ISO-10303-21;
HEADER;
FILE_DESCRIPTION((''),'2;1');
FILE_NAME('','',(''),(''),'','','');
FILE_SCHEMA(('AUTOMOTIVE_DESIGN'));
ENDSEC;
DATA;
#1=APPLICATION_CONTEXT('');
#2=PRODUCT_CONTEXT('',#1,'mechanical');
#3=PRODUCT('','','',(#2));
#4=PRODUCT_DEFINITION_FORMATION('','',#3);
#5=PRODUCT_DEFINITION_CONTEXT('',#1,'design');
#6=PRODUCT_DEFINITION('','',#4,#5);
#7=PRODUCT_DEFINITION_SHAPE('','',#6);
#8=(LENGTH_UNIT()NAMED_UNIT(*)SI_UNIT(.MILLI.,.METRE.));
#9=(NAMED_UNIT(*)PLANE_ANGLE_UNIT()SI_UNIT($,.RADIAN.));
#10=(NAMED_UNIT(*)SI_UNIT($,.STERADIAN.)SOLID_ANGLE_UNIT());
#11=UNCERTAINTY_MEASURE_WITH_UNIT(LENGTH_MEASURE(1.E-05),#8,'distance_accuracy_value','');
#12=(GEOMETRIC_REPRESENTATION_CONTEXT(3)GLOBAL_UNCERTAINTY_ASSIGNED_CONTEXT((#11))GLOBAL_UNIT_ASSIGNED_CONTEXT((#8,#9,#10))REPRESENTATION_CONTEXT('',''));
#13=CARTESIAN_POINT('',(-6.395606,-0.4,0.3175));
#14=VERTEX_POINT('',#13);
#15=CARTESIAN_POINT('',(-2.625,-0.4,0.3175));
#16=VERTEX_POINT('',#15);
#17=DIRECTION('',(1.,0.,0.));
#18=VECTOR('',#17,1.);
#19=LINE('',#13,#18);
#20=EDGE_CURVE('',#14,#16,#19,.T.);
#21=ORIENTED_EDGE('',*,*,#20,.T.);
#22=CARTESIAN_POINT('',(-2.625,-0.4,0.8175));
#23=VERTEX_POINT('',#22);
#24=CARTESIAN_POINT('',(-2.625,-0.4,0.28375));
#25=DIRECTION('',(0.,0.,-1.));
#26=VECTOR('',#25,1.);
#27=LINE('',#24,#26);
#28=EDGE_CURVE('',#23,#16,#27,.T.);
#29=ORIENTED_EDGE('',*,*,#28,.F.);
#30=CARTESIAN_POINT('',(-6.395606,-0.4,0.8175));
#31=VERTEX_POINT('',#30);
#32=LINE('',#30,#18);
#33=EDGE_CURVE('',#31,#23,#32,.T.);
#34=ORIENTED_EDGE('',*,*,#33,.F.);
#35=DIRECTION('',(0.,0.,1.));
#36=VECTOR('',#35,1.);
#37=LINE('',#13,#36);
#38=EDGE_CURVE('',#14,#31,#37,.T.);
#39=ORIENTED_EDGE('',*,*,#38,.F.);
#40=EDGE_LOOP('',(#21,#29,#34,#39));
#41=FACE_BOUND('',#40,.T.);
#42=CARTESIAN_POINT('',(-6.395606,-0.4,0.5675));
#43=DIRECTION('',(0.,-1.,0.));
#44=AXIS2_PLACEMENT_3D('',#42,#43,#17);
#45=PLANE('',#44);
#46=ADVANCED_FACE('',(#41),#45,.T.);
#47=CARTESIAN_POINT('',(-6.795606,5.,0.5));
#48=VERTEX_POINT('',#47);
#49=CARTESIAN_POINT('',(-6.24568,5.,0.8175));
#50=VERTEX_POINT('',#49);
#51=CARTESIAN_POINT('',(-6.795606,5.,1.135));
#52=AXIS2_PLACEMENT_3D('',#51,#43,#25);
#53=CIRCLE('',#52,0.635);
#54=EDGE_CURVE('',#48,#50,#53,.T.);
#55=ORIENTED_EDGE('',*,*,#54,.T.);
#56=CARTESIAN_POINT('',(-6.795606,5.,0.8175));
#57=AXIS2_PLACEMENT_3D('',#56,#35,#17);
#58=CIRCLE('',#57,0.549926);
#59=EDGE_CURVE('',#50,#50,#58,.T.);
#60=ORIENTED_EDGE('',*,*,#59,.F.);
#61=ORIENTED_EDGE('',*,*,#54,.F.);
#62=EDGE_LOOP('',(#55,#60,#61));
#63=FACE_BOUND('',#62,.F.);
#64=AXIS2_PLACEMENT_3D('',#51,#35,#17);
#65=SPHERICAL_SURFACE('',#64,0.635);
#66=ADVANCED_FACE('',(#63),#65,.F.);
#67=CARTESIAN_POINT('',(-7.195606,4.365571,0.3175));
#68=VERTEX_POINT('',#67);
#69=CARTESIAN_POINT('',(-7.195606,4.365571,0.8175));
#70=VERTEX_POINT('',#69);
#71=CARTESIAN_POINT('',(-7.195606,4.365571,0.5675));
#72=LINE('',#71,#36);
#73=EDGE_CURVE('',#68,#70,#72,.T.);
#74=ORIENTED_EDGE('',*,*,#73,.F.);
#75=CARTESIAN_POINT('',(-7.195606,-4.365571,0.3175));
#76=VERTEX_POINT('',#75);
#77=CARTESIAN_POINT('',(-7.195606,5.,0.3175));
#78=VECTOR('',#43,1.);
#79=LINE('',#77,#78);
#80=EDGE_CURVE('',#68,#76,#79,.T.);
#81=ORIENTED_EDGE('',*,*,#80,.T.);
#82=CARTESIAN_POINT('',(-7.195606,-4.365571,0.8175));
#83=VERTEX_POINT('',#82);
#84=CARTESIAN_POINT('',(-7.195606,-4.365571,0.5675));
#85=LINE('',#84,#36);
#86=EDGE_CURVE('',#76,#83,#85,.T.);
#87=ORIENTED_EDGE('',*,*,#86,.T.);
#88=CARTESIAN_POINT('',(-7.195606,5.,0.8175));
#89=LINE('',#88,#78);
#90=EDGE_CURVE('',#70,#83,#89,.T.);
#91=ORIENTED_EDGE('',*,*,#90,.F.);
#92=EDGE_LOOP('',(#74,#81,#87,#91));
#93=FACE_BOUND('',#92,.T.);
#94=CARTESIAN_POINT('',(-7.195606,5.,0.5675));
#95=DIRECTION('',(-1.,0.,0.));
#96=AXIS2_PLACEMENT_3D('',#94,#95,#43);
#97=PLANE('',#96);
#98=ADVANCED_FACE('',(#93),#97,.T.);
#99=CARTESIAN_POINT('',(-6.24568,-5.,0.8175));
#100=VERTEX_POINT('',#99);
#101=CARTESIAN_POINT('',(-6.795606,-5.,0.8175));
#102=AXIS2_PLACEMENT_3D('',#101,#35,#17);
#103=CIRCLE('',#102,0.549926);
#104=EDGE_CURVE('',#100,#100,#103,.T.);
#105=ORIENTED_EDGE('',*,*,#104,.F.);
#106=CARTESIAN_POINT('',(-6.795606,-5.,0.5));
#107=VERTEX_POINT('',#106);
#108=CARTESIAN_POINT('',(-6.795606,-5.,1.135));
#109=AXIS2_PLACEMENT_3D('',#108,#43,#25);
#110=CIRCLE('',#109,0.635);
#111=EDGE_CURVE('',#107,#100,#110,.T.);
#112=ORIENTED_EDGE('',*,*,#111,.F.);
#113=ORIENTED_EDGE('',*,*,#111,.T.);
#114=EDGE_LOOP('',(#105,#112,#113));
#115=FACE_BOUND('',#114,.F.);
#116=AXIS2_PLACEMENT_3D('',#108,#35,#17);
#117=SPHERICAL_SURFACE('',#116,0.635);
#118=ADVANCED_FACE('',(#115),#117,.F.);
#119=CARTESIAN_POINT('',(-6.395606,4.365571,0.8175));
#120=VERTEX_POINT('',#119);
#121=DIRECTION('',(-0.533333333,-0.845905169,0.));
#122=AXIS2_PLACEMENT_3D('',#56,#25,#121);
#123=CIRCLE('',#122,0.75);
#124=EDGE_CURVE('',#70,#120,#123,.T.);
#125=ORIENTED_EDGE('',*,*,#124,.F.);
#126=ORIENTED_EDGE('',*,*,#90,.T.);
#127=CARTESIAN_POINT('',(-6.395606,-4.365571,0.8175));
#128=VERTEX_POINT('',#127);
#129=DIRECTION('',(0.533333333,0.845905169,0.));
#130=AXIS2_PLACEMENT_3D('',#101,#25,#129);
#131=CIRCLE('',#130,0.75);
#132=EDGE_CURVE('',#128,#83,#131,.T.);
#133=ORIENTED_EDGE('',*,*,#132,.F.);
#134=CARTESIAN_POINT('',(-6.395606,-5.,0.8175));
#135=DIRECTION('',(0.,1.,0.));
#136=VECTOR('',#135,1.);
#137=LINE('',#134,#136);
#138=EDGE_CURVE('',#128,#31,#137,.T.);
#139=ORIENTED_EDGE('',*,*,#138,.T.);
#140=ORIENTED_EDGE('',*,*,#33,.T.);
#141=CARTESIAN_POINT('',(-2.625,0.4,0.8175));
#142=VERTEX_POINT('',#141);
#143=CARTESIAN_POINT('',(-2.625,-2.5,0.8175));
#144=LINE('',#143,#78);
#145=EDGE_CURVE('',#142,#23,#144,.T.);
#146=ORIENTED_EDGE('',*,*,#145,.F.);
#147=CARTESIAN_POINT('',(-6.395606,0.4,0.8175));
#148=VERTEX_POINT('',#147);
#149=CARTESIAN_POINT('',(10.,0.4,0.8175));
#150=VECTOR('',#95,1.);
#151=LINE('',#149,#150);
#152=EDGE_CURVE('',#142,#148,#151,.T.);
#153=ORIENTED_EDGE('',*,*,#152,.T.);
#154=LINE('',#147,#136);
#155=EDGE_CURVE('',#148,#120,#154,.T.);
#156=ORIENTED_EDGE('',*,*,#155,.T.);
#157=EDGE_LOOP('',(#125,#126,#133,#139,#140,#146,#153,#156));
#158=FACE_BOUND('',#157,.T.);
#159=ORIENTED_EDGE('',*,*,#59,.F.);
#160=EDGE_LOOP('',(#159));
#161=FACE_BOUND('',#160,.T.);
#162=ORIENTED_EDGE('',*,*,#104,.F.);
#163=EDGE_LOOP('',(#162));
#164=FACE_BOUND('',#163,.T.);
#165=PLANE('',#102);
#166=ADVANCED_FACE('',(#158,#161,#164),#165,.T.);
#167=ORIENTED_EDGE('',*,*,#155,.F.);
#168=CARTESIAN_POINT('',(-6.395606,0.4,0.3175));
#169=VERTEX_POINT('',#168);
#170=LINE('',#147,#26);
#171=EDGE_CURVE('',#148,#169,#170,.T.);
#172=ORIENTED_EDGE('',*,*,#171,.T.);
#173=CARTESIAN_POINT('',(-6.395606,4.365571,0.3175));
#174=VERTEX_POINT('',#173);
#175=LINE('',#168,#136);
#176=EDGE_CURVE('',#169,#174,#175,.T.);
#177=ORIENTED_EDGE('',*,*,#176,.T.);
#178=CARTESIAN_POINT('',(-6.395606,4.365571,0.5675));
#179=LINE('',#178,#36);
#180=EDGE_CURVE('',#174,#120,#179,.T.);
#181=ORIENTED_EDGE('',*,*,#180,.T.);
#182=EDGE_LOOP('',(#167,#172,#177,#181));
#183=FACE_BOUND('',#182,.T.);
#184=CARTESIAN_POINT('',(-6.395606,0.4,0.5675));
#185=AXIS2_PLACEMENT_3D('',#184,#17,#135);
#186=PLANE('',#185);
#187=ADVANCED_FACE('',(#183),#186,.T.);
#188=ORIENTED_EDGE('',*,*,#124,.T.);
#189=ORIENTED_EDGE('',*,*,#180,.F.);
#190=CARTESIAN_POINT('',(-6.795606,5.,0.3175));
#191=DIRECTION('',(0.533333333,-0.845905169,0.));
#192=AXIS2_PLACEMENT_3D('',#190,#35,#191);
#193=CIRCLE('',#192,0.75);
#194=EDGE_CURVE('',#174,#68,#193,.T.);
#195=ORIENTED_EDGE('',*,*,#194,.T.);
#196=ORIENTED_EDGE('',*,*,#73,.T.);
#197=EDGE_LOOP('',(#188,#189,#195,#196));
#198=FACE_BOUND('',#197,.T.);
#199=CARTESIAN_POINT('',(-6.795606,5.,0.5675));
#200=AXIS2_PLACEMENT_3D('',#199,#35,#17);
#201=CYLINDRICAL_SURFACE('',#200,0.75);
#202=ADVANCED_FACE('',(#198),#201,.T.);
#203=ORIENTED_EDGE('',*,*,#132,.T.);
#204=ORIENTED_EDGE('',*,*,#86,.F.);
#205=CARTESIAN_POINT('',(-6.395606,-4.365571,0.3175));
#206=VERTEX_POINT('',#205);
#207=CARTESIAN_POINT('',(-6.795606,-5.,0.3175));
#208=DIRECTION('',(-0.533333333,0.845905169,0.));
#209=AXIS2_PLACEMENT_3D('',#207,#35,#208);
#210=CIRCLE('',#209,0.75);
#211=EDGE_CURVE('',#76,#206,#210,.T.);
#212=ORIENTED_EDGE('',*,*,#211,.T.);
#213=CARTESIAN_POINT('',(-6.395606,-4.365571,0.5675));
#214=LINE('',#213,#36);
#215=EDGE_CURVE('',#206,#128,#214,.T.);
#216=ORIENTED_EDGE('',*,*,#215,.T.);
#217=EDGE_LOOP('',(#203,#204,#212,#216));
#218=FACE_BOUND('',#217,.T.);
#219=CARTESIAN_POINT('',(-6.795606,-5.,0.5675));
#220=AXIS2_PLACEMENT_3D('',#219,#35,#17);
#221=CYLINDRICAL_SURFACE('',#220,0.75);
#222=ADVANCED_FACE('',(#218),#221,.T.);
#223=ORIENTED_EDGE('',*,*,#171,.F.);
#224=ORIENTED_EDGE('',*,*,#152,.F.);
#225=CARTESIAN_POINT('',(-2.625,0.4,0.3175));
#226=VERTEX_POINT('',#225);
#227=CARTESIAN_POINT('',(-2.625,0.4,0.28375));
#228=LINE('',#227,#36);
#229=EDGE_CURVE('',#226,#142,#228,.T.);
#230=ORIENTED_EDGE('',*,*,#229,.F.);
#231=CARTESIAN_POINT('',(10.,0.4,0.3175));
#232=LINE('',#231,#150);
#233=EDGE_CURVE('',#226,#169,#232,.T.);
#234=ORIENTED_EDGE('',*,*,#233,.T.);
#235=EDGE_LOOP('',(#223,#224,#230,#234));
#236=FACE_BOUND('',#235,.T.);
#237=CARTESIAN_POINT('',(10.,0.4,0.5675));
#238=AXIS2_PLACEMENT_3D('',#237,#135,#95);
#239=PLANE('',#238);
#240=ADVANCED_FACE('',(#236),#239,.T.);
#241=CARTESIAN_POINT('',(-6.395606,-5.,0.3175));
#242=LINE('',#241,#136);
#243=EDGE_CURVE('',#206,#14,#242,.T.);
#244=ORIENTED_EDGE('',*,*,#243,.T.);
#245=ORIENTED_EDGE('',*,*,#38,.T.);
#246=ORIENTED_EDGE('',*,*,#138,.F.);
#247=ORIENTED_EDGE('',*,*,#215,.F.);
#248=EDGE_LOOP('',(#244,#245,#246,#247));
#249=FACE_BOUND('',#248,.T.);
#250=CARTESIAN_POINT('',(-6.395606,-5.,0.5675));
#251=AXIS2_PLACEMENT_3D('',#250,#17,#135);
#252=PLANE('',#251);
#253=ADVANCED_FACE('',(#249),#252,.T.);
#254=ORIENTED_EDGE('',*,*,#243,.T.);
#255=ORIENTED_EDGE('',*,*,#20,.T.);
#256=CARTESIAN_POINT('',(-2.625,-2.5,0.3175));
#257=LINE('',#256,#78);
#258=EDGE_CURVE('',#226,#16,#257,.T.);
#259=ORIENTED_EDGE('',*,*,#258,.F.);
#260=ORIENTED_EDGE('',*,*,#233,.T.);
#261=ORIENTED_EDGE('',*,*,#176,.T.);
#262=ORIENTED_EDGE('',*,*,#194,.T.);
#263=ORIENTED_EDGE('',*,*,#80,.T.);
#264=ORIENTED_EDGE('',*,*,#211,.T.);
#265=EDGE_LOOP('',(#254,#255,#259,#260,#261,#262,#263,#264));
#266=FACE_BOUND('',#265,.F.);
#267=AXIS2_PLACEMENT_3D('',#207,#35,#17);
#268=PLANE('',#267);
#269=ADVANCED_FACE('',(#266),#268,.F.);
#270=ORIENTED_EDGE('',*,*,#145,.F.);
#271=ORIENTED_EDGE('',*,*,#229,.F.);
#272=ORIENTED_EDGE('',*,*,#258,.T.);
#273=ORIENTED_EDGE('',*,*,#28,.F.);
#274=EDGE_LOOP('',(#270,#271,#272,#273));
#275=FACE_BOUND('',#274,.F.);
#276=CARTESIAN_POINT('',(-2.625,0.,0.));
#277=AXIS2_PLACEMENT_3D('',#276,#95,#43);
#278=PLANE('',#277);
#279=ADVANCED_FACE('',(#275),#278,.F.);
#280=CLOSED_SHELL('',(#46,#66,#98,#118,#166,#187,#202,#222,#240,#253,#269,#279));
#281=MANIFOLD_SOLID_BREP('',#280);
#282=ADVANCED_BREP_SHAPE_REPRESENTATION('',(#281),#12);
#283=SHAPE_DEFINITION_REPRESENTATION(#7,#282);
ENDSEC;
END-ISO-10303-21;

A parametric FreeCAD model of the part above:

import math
import FreeCAD as App
import Part
import Sketcher
from FreeCAD import Vector


def add_polygon(sketch, points):
    """Adds a closed chain of lines whose ends are joined by coincident constraints."""
    first, n = sketch.GeometryCount, len(points)
    for a, b in zip(points, points[1:] + points[:1]):
        sketch.addGeometry(Part.LineSegment(App.Vector(*a, 0), App.Vector(*b, 0)), False)
    for i in range(n):
        sketch.addConstraint(Sketcher.Constraint("Coincident", first + i, 2, first + (i + 1) % n, 1))

doc = App.newDocument("Part")
body = doc.addObject("PartDesign::Body", "Body")

# Sketch on XY plane
sketch1 = body.newObject("Sketcher::SketchObject", "Sketch")
sketch1.AttachmentSupport = (doc.getObject("XY_Plane"), [""])
sketch1.MapMode = "FlatFace"
sketch1.AttachmentOffset = App.Placement(Vector(0, 0, 0.5675), App.Rotation())
add_polygon(sketch1, [(-7.2, 5), (-7.2, -5), (-6.4, -5), (-6.4, -0.4), (10, -0.4), (10, 0.4), (-6.4, 0.4), (-6.4, 5)])  # lines 0-7
sketch1.addConstraint(Sketcher.Constraint("Vertical", 0))
sketch1.addConstraint(Sketcher.Constraint("Horizontal", 1))
sketch1.addConstraint(Sketcher.Constraint("Vertical", 2))
sketch1.addConstraint(Sketcher.Constraint("Horizontal", 3))
sketch1.addConstraint(Sketcher.Constraint("Vertical", 4))
sketch1.addConstraint(Sketcher.Constraint("Horizontal", 5))
sketch1.addConstraint(Sketcher.Constraint("Vertical", 6))
sketch1.addConstraint(Sketcher.Constraint("Horizontal", 7))
sketch1.addConstraint(Sketcher.Constraint("Symmetric", 2, 2, 5, 2, -1))
sketch1.addConstraint(Sketcher.Constraint("Equal", 7, 4))
sketch1.addConstraint(Sketcher.Constraint("Equal", 2, 6))
sketch1.addConstraint(Sketcher.Constraint("DistanceY", 0, 2, 0, 1, 10.0))
sketch1.addConstraint(Sketcher.Constraint("DistanceX", 1, 1, 1, 2, 0.8))
sketch1.addConstraint(Sketcher.Constraint("DistanceX", -1, 1, 3, 2, 10.0))
sketch1.addConstraint(Sketcher.Constraint("DistanceX", 3, 1, 3, 2, 16.395606))
pad1 = body.newObject("PartDesign::Pad", "Pad")
pad1.Profile = sketch1
pad1.Length = 0.5
pad1.Midplane = True

# Sketch on XY plane
sketch2 = body.newObject("Sketcher::SketchObject", "Sketch001")
sketch2.AttachmentSupport = (doc.getObject("XY_Plane"), [""])
sketch2.MapMode = "FlatFace"
sketch2.AttachmentOffset = App.Placement(Vector(0, 0, 0.5675), App.Rotation())
sketch2.addGeometry(Part.Circle(Vector(0, 0, 0), Vector(0, 0, 1), 0.8), False)
sketch2.addConstraint(Sketcher.Constraint("Coincident", 0, 3, -1, 1))
sketch2.addConstraint(Sketcher.Constraint("Diameter", 0, 1.5))
pad2 = body.newObject("PartDesign::Pad", "Pad001")
pad2.Profile = sketch2
pad2.Length = 0.5
pad2.Midplane = True

# Sketch on XY plane
sketch3 = body.newObject("Sketcher::SketchObject", "Sketch002")
sketch3.AttachmentSupport = (doc.getObject("XY_Plane"), [""])
sketch3.MapMode = "FlatFace"
sketch3.AttachmentOffset = App.Placement(Vector(0, 0, 0.5675), App.Rotation())
sketch3.addGeometry(Part.Circle(Vector(-6.8, 5, 0), Vector(0, 0, 1), 0.8), False)
sketch3.addConstraint(Sketcher.Constraint("Diameter", 0, 1.5))
sketch3.addConstraint(Sketcher.Constraint("DistanceY", -1, 1, 0, 3, 5.0))
sketch3.addConstraint(Sketcher.Constraint("DistanceX", 0, 3, -1, 1, 6.795606))
pad3 = body.newObject("PartDesign::Pad", "Pad002")
pad3.Profile = sketch3
pad3.Length = 0.5
pad3.Midplane = True

# Sketch on XY plane
sketch4 = body.newObject("Sketcher::SketchObject", "Sketch003")
sketch4.AttachmentSupport = (doc.getObject("XY_Plane"), [""])
sketch4.MapMode = "FlatFace"
sketch4.AttachmentOffset = App.Placement(Vector(0, 0, 0.5675), App.Rotation())
sketch4.addGeometry(Part.Circle(Vector(-6.8, -5, 0), Vector(0, 0, 1), 0.8), False)
sketch4.addConstraint(Sketcher.Constraint("Diameter", 0, 1.5))
sketch4.addConstraint(Sketcher.Constraint("DistanceY", 0, 3, -1, 1, 5.0))
sketch4.addConstraint(Sketcher.Constraint("DistanceX", 0, 3, -1, 1, 6.795606))
pad4 = body.newObject("PartDesign::Pad", "Pad003")
pad4.Profile = sketch4
pad4.Length = 0.5
pad4.Midplane = True

# Sketch on XZ plane
sketch5 = body.newObject("Sketcher::SketchObject", "Sketch004")
sketch5.AttachmentSupport = (doc.getObject("XZ_Plane"), [""])
sketch5.MapMode = "FlatFace"
sketch5.addGeometry(Part.ArcOfCircle(Part.Circle(Vector(0, 0, 0), Vector(0, 0, 1), 0.6), math.radians(-90), math.radians(90)), False)
sketch5.addGeometry(Part.LineSegment(Vector(0, 0.6, 0), Vector(0, -0.6, 0)), False)
sketch5.addConstraint(Sketcher.Constraint("Coincident", 0, 1, 1, 2))
sketch5.addConstraint(Sketcher.Constraint("Coincident", 1, 1, 0, 2))
sketch5.addConstraint(Sketcher.Constraint("Vertical", 1))
sketch5.addConstraint(Sketcher.Constraint("Coincident", 0, 3, -1, 1))
sketch5.addConstraint(Sketcher.Constraint("PointOnObject", 0, 1, -2))
sketch5.addConstraint(Sketcher.Constraint("Radius", 0, 0.635))
groove = body.newObject("PartDesign::Groove", "Groove")
groove.Profile = sketch5
groove.ReferenceAxis = (sketch5, ["V_Axis"])
groove.Angle = 360

# Sketch on XZ plane
sketch6 = body.newObject("Sketcher::SketchObject", "Sketch005")
sketch6.AttachmentSupport = (doc.getObject("XZ_Plane"), [""])
sketch6.MapMode = "FlatFace"
sketch6.AttachmentOffset = App.Placement(Vector(0, 0, -5), App.Rotation())
sketch6.addGeometry(Part.ArcOfCircle(Part.Circle(Vector(-6.8, 1.1, 0), Vector(0, 0, 1), 0.6), math.radians(-90), math.radians(90)), False)
sketch6.addGeometry(Part.LineSegment(Vector(-6.8, 1.8, 0), Vector(-6.8, 0.5, 0)), False)
sketch6.addGeometry(Part.LineSegment(Vector(-6.8, 0.5, 0), Vector(-6.8, 1.8, 0)), True)  # axis
sketch6.addConstraint(Sketcher.Constraint("Coincident", 0, 1, 1, 2))
sketch6.addConstraint(Sketcher.Constraint("Coincident", 1, 1, 0, 2))
sketch6.addConstraint(Sketcher.Constraint("Vertical", 1))
sketch6.addConstraint(Sketcher.Constraint("Vertical", 2))
sketch6.addConstraint(Sketcher.Constraint("Coincident", 2, 1, 0, 1))
sketch6.addConstraint(Sketcher.Constraint("Equal", 1, 2))
sketch6.addConstraint(Sketcher.Constraint("Radius", 0, 0.635))
sketch6.addConstraint(Sketcher.Constraint("DistanceY", -1, 1, 0, 1, 0.5))
sketch6.addConstraint(Sketcher.Constraint("DistanceX", 0, 3, -1, 1, 6.795606))
sketch6.addConstraint(Sketcher.Constraint("DistanceX", 0, 1, -1, 1, 6.795606))
groove2 = body.newObject("PartDesign::Groove", "Groove001")
groove2.Profile = sketch6
groove2.ReferenceAxis = (sketch6, ["Axis0"])
groove2.Angle = 360

# Sketch on XZ plane
sketch7 = body.newObject("Sketcher::SketchObject", "Sketch006")
sketch7.AttachmentSupport = (doc.getObject("XZ_Plane"), [""])
sketch7.MapMode = "FlatFace"
sketch7.AttachmentOffset = App.Placement(Vector(0, 0, 5), App.Rotation())
sketch7.addGeometry(Part.ArcOfCircle(Part.Circle(Vector(-6.8, 1.1, 0), Vector(0, 0, 1), 0.6), math.radians(-90), math.radians(90)), False)
sketch7.addGeometry(Part.LineSegment(Vector(-6.8, 1.8, 0), Vector(-6.8, 0.5, 0)), False)
sketch7.addGeometry(Part.LineSegment(Vector(-6.8, 0.5, 0), Vector(-6.8, 1.8, 0)), True)  # axis
sketch7.addConstraint(Sketcher.Constraint("Coincident", 0, 1, 1, 2))
sketch7.addConstraint(Sketcher.Constraint("Coincident", 1, 1, 0, 2))
sketch7.addConstraint(Sketcher.Constraint("Vertical", 1))
sketch7.addConstraint(Sketcher.Constraint("Vertical", 2))
sketch7.addConstraint(Sketcher.Constraint("Coincident", 2, 1, 0, 1))
sketch7.addConstraint(Sketcher.Constraint("Equal", 1, 2))
sketch7.addConstraint(Sketcher.Constraint("Radius", 0, 0.635))
sketch7.addConstraint(Sketcher.Constraint("DistanceY", -1, 1, 0, 1, 0.5))
sketch7.addConstraint(Sketcher.Constraint("DistanceX", 0, 3, -1, 1, 6.795606))
sketch7.addConstraint(Sketcher.Constraint("DistanceX", 0, 1, -1, 1, 6.795606))
groove3 = body.newObject("PartDesign::Groove", "Groove002")
groove3.Profile = sketch7
groove3.ReferenceAxis = (sketch7, ["Axis0"])
groove3.Angle = 360

# Sketch on XZ plane
sketch8 = body.newObject("Sketcher::SketchObject", "Sketch007")
sketch8.AttachmentSupport = (doc.getObject("XZ_Plane"), [""])
sketch8.MapMode = "FlatFace"
sketch8.addGeometry(Part.Circle(Vector(6.8, 0.6, 0), Vector(0, 0, 1), 0.8), False)
sketch8.addConstraint(Sketcher.Constraint("Diameter", 0, 1.5))
sketch8.addConstraint(Sketcher.Constraint("DistanceX", -1, 1, 0, 3, 6.8))
sketch8.addConstraint(Sketcher.Constraint("DistanceY", -1, 1, 0, 3, 0.5675))
pad5 = body.newObject("PartDesign::Pad", "Pad004")
pad5.Profile = sketch8
pad5.Length = 0.8
pad5.Midplane = True

# Sketch on XZ plane
sketch9 = body.newObject("Sketcher::SketchObject", "Sketch008")
sketch9.AttachmentSupport = (doc.getObject("XZ_Plane"), [""])
sketch9.MapMode = "FlatFace"
sketch9.AttachmentOffset = App.Placement(Vector(0, 0, -0.7175), App.Rotation())
sketch9.addGeometry(Part.ArcOfCircle(Part.Circle(Vector(6.8, 0.6, 0), Vector(0, 0, 1), 0.6), math.radians(-90), math.radians(90)), False)
sketch9.addGeometry(Part.LineSegment(Vector(6.8, 1.2, 0), Vector(6.8, -0.1, 0)), False)
sketch9.addGeometry(Part.LineSegment(Vector(6.8, -0.1, 0), Vector(6.8, 1.2, 0)), True)  # axis
sketch9.addConstraint(Sketcher.Constraint("Coincident", 0, 1, 1, 2))
sketch9.addConstraint(Sketcher.Constraint("Coincident", 1, 1, 0, 2))
sketch9.addConstraint(Sketcher.Constraint("Vertical", 1))
sketch9.addConstraint(Sketcher.Constraint("Vertical", 2))
sketch9.addConstraint(Sketcher.Constraint("Coincident", 2, 1, 0, 1))
sketch9.addConstraint(Sketcher.Constraint("Equal", 1, 2))
sketch9.addConstraint(Sketcher.Constraint("Radius", 0, 0.635))
sketch9.addConstraint(Sketcher.Constraint("DistanceX", -1, 1, 0, 3, 6.8))
sketch9.addConstraint(Sketcher.Constraint("DistanceX", -1, 1, 0, 1, 6.8))
sketch9.addConstraint(Sketcher.Constraint("DistanceY", -1, 1, 0, 3, 0.5675))
groove4 = body.newObject("PartDesign::Groove", "Groove003")
groove4.Profile = sketch9
groove4.ReferenceAxis = (sketch9, ["Axis0"])
groove4.Angle = 360

# Sketch on YZ plane
sketch10 = body.newObject("Sketcher::SketchObject", "Sketch009")
sketch10.AttachmentSupport = (doc.getObject("YZ_Plane"), [""])
sketch10.MapMode = "FlatFace"
sketch10.AttachmentOffset = App.Placement(Vector(0, 0, -2.625), App.Rotation())
add_polygon(sketch10, [(5, 5), (5, -5), (-5, -5), (-5, 5)])  # lines 0-3
sketch10.addConstraint(Sketcher.Constraint("Vertical", 0))
sketch10.addConstraint(Sketcher.Constraint("Horizontal", 1))
sketch10.addConstraint(Sketcher.Constraint("Vertical", 2))
sketch10.addConstraint(Sketcher.Constraint("Horizontal", 3))
sketch10.addConstraint(Sketcher.Constraint("Symmetric", 0, 2, 2, 2, -1, 1))
sketch10.addConstraint(Sketcher.Constraint("Equal", 3, 0))
sketch10.addConstraint(Sketcher.Constraint("DistanceX", 1, 2, 1, 1, 10.0))
pocket1 = body.newObject("PartDesign::Pocket", "Pocket")
pocket1.Profile = sketch10
pocket1.Type = "ThroughAll"
pocket1.Reversed = True

doc.recompute()
